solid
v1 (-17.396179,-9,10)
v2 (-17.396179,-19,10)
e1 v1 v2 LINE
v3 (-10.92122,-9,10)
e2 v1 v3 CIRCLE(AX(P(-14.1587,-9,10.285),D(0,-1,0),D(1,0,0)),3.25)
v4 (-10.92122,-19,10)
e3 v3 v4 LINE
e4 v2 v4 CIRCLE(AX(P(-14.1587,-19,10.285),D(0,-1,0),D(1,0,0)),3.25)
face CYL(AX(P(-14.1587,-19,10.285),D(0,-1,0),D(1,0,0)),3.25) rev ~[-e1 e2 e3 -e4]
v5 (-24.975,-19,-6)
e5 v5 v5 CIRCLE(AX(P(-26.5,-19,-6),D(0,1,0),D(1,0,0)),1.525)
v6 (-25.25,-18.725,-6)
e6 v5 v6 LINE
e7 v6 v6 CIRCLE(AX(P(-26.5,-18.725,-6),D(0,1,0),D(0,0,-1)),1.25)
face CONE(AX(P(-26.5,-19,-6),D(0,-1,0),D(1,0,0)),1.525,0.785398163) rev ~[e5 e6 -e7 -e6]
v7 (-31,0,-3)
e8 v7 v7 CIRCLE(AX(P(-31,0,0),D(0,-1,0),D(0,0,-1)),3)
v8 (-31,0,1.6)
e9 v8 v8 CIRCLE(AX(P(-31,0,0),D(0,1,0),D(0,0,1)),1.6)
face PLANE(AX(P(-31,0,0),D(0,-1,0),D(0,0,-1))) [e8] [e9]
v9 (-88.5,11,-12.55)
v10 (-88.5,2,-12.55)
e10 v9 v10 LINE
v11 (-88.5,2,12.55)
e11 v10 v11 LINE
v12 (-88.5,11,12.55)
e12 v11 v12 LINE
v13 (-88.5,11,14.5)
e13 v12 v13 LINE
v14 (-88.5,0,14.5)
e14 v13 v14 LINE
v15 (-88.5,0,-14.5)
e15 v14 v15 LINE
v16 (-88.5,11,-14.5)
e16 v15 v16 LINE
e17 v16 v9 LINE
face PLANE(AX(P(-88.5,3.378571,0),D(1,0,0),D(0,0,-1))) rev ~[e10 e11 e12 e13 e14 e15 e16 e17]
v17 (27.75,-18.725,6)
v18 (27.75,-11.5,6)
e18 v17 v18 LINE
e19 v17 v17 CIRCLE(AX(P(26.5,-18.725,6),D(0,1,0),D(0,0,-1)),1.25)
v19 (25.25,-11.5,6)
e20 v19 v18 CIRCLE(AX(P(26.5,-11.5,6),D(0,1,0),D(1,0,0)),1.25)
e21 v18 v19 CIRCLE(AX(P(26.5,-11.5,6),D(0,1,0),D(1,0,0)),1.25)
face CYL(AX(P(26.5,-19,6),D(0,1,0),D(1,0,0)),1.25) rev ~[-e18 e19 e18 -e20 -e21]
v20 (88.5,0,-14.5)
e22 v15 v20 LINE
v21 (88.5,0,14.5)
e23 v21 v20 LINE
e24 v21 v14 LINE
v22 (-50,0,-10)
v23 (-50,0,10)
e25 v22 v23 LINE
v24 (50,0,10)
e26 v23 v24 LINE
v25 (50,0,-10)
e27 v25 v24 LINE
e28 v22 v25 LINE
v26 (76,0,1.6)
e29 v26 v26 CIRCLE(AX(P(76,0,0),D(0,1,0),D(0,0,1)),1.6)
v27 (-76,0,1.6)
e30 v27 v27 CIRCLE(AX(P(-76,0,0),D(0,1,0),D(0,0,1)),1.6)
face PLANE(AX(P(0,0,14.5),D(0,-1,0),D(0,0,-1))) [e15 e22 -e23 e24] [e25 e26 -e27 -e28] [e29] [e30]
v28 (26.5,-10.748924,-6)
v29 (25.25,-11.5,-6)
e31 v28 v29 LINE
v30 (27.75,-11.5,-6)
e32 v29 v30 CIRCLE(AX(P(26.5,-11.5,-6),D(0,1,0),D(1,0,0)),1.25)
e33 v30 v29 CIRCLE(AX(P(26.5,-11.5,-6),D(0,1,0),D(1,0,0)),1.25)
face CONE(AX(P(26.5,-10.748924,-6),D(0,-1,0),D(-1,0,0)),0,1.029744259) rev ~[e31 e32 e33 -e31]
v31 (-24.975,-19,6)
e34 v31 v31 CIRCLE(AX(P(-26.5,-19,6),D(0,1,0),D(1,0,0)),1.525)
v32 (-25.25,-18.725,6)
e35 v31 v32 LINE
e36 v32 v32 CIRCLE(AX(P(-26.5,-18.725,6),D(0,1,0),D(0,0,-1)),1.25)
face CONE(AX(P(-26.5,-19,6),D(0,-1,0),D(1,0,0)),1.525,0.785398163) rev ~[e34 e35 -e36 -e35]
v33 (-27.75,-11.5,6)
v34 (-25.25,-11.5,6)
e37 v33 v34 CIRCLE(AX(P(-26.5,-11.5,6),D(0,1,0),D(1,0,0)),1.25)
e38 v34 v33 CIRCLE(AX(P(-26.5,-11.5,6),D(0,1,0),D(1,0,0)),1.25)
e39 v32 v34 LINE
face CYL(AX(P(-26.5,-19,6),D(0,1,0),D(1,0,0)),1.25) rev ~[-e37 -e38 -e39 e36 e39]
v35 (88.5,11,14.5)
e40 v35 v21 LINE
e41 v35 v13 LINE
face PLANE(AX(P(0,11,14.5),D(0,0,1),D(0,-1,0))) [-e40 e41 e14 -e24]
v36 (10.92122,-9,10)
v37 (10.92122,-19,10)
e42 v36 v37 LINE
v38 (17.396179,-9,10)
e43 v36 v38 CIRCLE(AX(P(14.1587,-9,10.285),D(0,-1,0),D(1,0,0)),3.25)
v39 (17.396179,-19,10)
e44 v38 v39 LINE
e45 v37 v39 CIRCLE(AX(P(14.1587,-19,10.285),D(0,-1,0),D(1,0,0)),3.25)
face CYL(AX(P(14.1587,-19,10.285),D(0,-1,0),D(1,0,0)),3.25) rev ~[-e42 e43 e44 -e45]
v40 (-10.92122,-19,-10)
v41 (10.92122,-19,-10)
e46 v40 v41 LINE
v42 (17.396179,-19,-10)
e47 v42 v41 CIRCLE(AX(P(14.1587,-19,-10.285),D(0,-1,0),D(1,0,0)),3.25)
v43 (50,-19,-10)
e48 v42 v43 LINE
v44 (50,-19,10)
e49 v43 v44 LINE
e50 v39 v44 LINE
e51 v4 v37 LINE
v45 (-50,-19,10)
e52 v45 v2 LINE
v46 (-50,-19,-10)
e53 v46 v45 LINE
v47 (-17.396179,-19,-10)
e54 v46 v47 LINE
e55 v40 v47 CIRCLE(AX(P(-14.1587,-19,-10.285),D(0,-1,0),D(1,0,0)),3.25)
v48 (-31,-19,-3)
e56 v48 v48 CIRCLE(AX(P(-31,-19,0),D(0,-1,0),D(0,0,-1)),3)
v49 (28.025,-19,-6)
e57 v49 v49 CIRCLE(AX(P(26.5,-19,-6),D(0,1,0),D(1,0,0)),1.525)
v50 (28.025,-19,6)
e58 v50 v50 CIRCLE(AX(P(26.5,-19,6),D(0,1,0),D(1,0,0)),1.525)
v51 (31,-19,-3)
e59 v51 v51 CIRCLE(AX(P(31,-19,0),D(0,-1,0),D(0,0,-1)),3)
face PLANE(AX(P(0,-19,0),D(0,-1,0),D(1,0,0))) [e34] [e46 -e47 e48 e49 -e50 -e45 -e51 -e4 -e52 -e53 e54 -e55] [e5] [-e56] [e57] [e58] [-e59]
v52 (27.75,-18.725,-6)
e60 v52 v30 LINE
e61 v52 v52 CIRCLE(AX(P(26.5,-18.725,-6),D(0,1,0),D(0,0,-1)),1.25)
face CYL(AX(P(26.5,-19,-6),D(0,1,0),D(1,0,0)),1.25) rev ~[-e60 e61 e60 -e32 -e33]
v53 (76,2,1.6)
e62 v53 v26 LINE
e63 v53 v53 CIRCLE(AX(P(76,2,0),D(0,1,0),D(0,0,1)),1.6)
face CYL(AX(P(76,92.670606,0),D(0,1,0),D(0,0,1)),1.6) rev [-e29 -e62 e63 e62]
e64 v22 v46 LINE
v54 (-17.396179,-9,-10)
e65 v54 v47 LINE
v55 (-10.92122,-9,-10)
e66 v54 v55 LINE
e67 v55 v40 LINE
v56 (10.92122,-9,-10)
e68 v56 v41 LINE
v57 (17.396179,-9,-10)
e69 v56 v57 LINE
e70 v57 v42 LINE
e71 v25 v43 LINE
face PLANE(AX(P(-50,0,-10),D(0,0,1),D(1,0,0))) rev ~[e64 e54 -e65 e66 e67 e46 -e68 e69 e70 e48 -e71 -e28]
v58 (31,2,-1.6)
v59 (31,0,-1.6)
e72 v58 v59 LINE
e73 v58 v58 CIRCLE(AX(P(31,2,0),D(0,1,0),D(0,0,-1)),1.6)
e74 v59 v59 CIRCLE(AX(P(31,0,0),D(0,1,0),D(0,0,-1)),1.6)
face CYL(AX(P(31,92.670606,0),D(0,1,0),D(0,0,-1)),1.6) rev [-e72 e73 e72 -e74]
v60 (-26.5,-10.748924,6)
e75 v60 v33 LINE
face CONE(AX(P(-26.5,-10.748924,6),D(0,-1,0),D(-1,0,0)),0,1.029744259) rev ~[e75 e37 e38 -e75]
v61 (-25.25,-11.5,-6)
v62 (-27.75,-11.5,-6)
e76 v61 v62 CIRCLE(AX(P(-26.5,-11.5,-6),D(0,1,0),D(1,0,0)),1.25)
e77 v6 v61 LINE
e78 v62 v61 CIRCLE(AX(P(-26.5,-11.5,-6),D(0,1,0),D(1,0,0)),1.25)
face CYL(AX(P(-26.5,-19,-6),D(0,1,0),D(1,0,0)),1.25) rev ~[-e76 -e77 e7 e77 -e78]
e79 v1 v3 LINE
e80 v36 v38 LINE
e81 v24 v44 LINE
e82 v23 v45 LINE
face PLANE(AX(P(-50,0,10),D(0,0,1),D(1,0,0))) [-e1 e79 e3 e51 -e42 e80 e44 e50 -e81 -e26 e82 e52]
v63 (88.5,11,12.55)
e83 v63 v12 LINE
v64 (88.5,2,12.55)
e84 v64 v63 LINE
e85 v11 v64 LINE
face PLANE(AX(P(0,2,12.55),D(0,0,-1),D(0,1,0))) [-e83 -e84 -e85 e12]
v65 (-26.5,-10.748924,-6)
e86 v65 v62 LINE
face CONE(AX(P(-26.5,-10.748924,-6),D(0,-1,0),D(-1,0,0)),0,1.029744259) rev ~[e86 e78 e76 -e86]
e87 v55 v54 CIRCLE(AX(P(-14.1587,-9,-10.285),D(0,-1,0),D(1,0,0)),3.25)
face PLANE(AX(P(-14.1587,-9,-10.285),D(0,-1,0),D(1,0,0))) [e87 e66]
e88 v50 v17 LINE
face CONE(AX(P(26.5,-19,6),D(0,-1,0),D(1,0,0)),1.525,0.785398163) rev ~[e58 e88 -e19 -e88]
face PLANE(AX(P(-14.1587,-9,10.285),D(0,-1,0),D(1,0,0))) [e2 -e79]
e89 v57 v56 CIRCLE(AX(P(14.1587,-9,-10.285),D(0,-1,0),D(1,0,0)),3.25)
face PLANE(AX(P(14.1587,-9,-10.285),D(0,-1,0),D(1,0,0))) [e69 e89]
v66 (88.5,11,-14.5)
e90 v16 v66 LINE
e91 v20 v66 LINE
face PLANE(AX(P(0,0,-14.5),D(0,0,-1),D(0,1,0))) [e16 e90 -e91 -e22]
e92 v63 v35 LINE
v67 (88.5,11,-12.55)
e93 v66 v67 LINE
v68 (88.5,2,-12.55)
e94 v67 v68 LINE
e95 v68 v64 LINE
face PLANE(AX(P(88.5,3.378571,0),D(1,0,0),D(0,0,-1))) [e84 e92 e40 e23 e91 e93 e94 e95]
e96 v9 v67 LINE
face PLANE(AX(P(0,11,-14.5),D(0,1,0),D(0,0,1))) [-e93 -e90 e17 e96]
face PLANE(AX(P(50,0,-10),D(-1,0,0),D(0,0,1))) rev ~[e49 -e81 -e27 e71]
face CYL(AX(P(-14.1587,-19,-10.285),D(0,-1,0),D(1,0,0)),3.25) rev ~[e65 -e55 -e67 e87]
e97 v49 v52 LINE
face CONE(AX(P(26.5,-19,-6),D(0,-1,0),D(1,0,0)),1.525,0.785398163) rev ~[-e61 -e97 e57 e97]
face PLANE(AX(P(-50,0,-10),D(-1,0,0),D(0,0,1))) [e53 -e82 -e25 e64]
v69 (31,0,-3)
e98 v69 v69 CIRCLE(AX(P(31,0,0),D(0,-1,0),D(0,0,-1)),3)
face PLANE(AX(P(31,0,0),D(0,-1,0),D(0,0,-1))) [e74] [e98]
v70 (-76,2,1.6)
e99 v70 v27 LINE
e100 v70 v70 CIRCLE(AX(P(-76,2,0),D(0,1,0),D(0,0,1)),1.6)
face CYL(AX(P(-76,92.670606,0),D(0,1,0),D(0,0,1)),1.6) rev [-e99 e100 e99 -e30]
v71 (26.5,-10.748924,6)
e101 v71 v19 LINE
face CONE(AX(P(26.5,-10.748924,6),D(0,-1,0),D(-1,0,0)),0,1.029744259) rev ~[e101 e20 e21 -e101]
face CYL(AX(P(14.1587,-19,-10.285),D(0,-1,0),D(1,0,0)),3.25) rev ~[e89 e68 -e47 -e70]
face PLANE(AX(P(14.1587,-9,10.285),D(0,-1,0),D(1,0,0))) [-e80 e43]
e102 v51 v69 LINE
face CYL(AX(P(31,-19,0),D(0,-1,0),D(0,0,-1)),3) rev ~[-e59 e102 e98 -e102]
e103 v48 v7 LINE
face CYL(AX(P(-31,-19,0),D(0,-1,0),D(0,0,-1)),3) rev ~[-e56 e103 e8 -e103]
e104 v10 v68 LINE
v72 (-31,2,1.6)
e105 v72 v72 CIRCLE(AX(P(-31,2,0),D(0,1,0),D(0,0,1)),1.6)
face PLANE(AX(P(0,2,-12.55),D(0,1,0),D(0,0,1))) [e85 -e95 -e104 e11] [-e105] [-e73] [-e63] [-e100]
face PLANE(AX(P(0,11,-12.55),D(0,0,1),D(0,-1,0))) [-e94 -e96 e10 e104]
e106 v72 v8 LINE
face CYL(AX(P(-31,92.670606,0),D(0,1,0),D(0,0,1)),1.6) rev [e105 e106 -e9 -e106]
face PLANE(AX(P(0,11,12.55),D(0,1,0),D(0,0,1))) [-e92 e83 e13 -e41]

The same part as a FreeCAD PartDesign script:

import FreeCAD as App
import Part
import Sketcher
Q = App.Units.Quantity


def add_polygon(sketch, points):
    """Adds a closed chain of lines whose ends are joined by coincident constraints."""
    first, n = sketch.GeometryCount, len(points)
    for a, b in zip(points, points[1:] + points[:1]):
        sketch.addGeometry(Part.LineSegment(App.Vector(*a, 0), App.Vector(*b, 0)), False)
    for i in range(n):
        sketch.addConstraint(Sketcher.Constraint("Coincident", first + i, 2, first + (i + 1) % n, 1))

doc = App.newDocument("Part")
params = doc.addObject("Spreadsheet::Sheet", "Params")
for row, (alias, value) in enumerate([
    ("sketch1_width", "11 mm"),
    ("sketch1_width2", "9 mm"),
    ("sketch1_height", "29 mm"),
    ("sketch1_height2", "25.1 mm"),
    ("pad1_length", "177 mm"),
    ("sketch2_width", "100 mm"),
    ("sketch2_height", "20 mm"),
    ("pad2_length", "19 mm"),
    ("sketch3_diameter", "3.2 mm"),
    ("pocket1_length", "16 mm"),
    ("pocket1_length2", "92.670606 mm"),
    ("sketch4_diameter", "6 mm"),
    ("pocket2_length", "19 mm"),
    ("sketch5_diameter", "2.5 mm"),
    ("hole_diameter", "2.5 mm"),
    ("hole_depth", "7.5 mm"),
    ("hole_csink_diameter", "3.05 mm"),
    ("sketch6_diameter", "6.5 mm"),
    ("pocket3_length", "10 mm"),
], start=1):
    params.set(f"A{row}", alias)
    params.set(f"B{row}", "=" + value)
    params.setAlias(f"B{row}", alias)

body = doc.addObject("PartDesign::Body", "Body")

# Sketch on YZ plane
sketch1 = doc.addObject("Sketcher::SketchObject", "Sketch")
body.addObject(sketch1)
sketch1.AttachmentSupport = (doc.YZ_Plane, [""])
sketch1.MapMode = "FlatFace"
add_polygon(sketch1, [(0, 14.5), (0, -14.5), (11, -14.5), (11, -12.6), (2, -12.6), (2, 12.6), (11, 12.6), (11, 14.5)])  # lines 0-7
sketch1.addConstraint([
    Sketcher.Constraint("Vertical", 0),
    Sketcher.Constraint("Horizontal", 1),
    Sketcher.Constraint("Vertical", 2),
    Sketcher.Constraint("Horizontal", 3),
    Sketcher.Constraint("Vertical", 4),
    Sketcher.Constraint("Horizontal", 5),
    Sketcher.Constraint("Vertical", 6),
    Sketcher.Constraint("Horizontal", 7),
    Sketcher.Constraint("Symmetric", 0, 2, 7, 2, -1, 1),
    Sketcher.Constraint("Symmetric", 2, 2, 5, 2, -1),
    Sketcher.Constraint("DistanceX", 1, 1, 1, 2, Q("11 mm")),
    Sketcher.Constraint("DistanceX", 3, 2, 3, 1, Q("9 mm")),
    Sketcher.Constraint("DistanceY", 0, 2, 0, 1, Q("29 mm")),
    Sketcher.Constraint("DistanceY", 4, 1, 4, 2, Q("25.1 mm")),
])
sketch1.setExpression("Constraints[18]", "Params.sketch1_width")
sketch1.setExpression("Constraints[19]", "Params.sketch1_width2")
sketch1.setExpression("Constraints[20]", "Params.sketch1_height")
sketch1.setExpression("Constraints[21]", "Params.sketch1_height2")
pad1 = doc.addObject("PartDesign::Pad", "Pad")
body.addObject(pad1)
pad1.Profile = sketch1
pad1.setExpression("Length", "Params.pad1_length")
pad1.Midplane = True

# Sketch on XZ plane
sketch2 = doc.addObject("Sketcher::SketchObject", "Sketch001")
body.addObject(sketch2)
sketch2.AttachmentSupport = (doc.XZ_Plane, [""])
sketch2.MapMode = "FlatFace"
add_polygon(sketch2, [(-50, 10), (-50, -10), (50, -10), (50, 10)])  # lines 0-3
sketch2.addConstraint([
    Sketcher.Constraint("Vertical", 0),
    Sketcher.Constraint("Horizontal", 1),
    Sketcher.Constraint("Vertical", 2),
    Sketcher.Constraint("Horizontal", 3),
    Sketcher.Constraint("Symmetric", 0, 2, 2, 2, -1, 1),
    Sketcher.Constraint("DistanceX", 1, 1, 1, 2, Q("100 mm")),
    Sketcher.Constraint("DistanceY", 0, 2, 0, 1, Q("20 mm")),
])
sketch2.setExpression("Constraints[9]", "Params.sketch2_width")
sketch2.setExpression("Constraints[10]", "Params.sketch2_height")
pad2 = doc.addObject("PartDesign::Pad", "Pad001")
body.addObject(pad2)
pad2.Profile = sketch2
pad2.setExpression("Length", "Params.pad2_length")

# Sketch on XZ plane
sketch3 = doc.addObject("Sketcher::SketchObject", "Sketch002")
body.addObject(sketch3)
sketch3.AttachmentSupport = (doc.XZ_Plane, [""])
sketch3.MapMode = "FlatFace"
sketch3.addGeometry([
    Part.Circle(App.Vector(76, 0, 0), App.Vector(0, 0, 1), 1.6),
    Part.Circle(App.Vector(31, 0, 0), App.Vector(0, 0, 1), 1.6),
    Part.Circle(App.Vector(-31, 0, 0), App.Vector(0, 0, 1), 1.6),
    Part.Circle(App.Vector(-76, 0, 0), App.Vector(0, 0, 1), 1.6),
], False)
sketch3.addConstraint([
    Sketcher.Constraint("Equal", 0, 1),
    Sketcher.Constraint("Equal", 1, 2),
    Sketcher.Constraint("Equal", 2, 3),
    Sketcher.Constraint("Symmetric", 1, 3, 2, 3, -1, 1),
    Sketcher.Constraint("Symmetric", 0, 3, 3, 3, -1, 1),
    Sketcher.Constraint("PointOnObject", 0, 3, -1),
    Sketcher.Constraint("PointOnObject", 1, 3, -1),
    Sketcher.Constraint("Diameter", 0, Q("3.2 mm")),
    Sketcher.Constraint("DistanceX", -1, 1, 0, 3, Q("76 mm")),
    Sketcher.Constraint("DistanceX", -1, 1, 1, 3, Q("31 mm")),
])
sketch3.setExpression("Constraints[7]", "Params.sketch3_diameter")
pocket1 = doc.addObject("PartDesign::Pocket", "Pocket")
body.addObject(pocket1)
pocket1.Profile = sketch3
pocket1.Type = "TwoLengths"
pocket1.setExpression("Length", "Params.pocket1_length")
pocket1.setExpression("Length2", "Params.pocket1_length2")
pocket1.Reversed = True

# Sketch on XZ plane
sketch4 = doc.addObject("Sketcher::SketchObject", "Sketch003")
body.addObject(sketch4)
sketch4.AttachmentSupport = (doc.XZ_Plane, [""])
sketch4.MapMode = "FlatFace"
sketch4.AttachmentOffset = App.Placement(App.Vector(0, 0, 19), App.Rotation())
sketch4.addGeometry([
    Part.Circle(App.Vector(-31, 0, 0), App.Vector(0, 0, 1), 3),
    Part.Circle(App.Vector(31, 0, 0), App.Vector(0, 0, 1), 3),
], False)
sketch4.addConstraint([
    Sketcher.Constraint("Equal", 0, 1),
    Sketcher.Constraint("Symmetric", 0, 3, 1, 3, -1, 1),
    Sketcher.Constraint("PointOnObject", 0, 3, -1),
    Sketcher.Constraint("Diameter", 0, Q("6 mm")),
    Sketcher.Constraint("DistanceX", 0, 3, -1, 1, Q("31 mm")),
])
sketch4.setExpression("Constraints[3]", "Params.sketch4_diameter")
pocket2 = doc.addObject("PartDesign::Pocket", "Pocket001")
body.addObject(pocket2)
pocket2.Profile = sketch4
pocket2.setExpression("Length", "Params.pocket2_length")

# Sketch on XZ plane
sketch5 = doc.addObject("Sketcher::SketchObject", "Sketch004")
body.addObject(sketch5)
sketch5.AttachmentSupport = (doc.XZ_Plane, [""])
sketch5.MapMode = "FlatFace"
sketch5.AttachmentOffset = App.Placement(App.Vector(0, 0, 19), App.Rotation())
sketch5.addGeometry([
    Part.Circle(App.Vector(26.5, 6, 0), App.Vector(0, 0, 1), 1.2),
    Part.Circle(App.Vector(-26.5, -6, 0), App.Vector(0, 0, 1), 1.2),
    Part.Circle(App.Vector(-26.5, 6, 0), App.Vector(0, 0, 1), 1.2),
    Part.Circle(App.Vector(26.5, -6, 0), App.Vector(0, 0, 1), 1.2),
], False)
sketch5.addConstraint([
    Sketcher.Constraint("Equal", 0, 1),
    Sketcher.Constraint("Equal", 1, 2),
    Sketcher.Constraint("Equal", 2, 3),
    Sketcher.Constraint("Symmetric", 0, 3, 1, 3, -1, 1),
    Sketcher.Constraint("Symmetric", 2, 3, 3, 3, -1, 1),
    Sketcher.Constraint("Symmetric", 0, 3, 2, 3, -2),
    Sketcher.Constraint("Diameter", 0, Q("2.5 mm")),
    Sketcher.Constraint("DistanceY", -1, 1, 0, 3, Q("6 mm")),
    Sketcher.Constraint("DistanceX", 1, 3, 0, 3, Q("53 mm")),
])
sketch5.setExpression("Constraints[6]", "Params.sketch5_diameter")
doc.recompute()
hole = doc.addObject("PartDesign::Hole", "Hole")
body.addObject(hole)
hole.Profile = sketch5
hole.ThreadType = "None"
hole.setExpression("Diameter", "Params.hole_diameter")
hole.DepthType = "Dimension"
hole.setExpression("Depth", "Params.hole_depth")
hole.DrillPoint = "Angled"
hole.DrillPointAngle = 118
hole.HoleCutType = "Countersink"
hole.setExpression("HoleCutDiameter", "Params.hole_csink_diameter")
hole.HoleCutCountersinkAngle = 90

# Sketch on XZ plane
sketch6 = doc.addObject("Sketcher::SketchObject", "Sketch005")
body.addObject(sketch6)
sketch6.AttachmentSupport = (doc.XZ_Plane, [""])
sketch6.MapMode = "FlatFace"
sketch6.AttachmentOffset = App.Placement(App.Vector(0, 0, 19), App.Rotation())
sketch6.addGeometry([
    Part.Circle(App.Vector(14.2, -10.3, 0), App.Vector(0, 0, 1), 3.2),
    Part.Circle(App.Vector(-14.2, -10.3, 0), App.Vector(0, 0, 1), 3.2),
    Part.Circle(App.Vector(-14.2, 10.3, 0), App.Vector(0, 0, 1), 3.2),
    Part.Circle(App.Vector(14.2, 10.3, 0), App.Vector(0, 0, 1), 3.2),
], False)
sketch6.addConstraint([
    Sketcher.Constraint("Equal", 0, 1),
    Sketcher.Constraint("Equal", 1, 2),
    Sketcher.Constraint("Equal", 2, 3),
    Sketcher.Constraint("Symmetric", 0, 3, 2, 3, -1, 1),
    Sketcher.Constraint("Symmetric", 1, 3, 3, 3, -1, 1),
    Sketcher.Constraint("Symmetric", 0, 3, 1, 3, -2),
    Sketcher.Constraint("Diameter", 0, Q("6.5 mm")),
    Sketcher.Constraint("DistanceY", 1, 3, 2, 3, Q("20.57 mm")),
    Sketcher.Constraint("DistanceX", -1, 1, 0, 3, Q("14.1587 mm")),
])
sketch6.setExpression("Constraints[6]", "Params.sketch6_diameter")
pocket3 = doc.addObject("PartDesign::Pocket", "Pocket002")
body.addObject(pocket3)
pocket3.Profile = sketch6
pocket3.setExpression("Length", "Params.pocket3_length")

doc.recompute()
